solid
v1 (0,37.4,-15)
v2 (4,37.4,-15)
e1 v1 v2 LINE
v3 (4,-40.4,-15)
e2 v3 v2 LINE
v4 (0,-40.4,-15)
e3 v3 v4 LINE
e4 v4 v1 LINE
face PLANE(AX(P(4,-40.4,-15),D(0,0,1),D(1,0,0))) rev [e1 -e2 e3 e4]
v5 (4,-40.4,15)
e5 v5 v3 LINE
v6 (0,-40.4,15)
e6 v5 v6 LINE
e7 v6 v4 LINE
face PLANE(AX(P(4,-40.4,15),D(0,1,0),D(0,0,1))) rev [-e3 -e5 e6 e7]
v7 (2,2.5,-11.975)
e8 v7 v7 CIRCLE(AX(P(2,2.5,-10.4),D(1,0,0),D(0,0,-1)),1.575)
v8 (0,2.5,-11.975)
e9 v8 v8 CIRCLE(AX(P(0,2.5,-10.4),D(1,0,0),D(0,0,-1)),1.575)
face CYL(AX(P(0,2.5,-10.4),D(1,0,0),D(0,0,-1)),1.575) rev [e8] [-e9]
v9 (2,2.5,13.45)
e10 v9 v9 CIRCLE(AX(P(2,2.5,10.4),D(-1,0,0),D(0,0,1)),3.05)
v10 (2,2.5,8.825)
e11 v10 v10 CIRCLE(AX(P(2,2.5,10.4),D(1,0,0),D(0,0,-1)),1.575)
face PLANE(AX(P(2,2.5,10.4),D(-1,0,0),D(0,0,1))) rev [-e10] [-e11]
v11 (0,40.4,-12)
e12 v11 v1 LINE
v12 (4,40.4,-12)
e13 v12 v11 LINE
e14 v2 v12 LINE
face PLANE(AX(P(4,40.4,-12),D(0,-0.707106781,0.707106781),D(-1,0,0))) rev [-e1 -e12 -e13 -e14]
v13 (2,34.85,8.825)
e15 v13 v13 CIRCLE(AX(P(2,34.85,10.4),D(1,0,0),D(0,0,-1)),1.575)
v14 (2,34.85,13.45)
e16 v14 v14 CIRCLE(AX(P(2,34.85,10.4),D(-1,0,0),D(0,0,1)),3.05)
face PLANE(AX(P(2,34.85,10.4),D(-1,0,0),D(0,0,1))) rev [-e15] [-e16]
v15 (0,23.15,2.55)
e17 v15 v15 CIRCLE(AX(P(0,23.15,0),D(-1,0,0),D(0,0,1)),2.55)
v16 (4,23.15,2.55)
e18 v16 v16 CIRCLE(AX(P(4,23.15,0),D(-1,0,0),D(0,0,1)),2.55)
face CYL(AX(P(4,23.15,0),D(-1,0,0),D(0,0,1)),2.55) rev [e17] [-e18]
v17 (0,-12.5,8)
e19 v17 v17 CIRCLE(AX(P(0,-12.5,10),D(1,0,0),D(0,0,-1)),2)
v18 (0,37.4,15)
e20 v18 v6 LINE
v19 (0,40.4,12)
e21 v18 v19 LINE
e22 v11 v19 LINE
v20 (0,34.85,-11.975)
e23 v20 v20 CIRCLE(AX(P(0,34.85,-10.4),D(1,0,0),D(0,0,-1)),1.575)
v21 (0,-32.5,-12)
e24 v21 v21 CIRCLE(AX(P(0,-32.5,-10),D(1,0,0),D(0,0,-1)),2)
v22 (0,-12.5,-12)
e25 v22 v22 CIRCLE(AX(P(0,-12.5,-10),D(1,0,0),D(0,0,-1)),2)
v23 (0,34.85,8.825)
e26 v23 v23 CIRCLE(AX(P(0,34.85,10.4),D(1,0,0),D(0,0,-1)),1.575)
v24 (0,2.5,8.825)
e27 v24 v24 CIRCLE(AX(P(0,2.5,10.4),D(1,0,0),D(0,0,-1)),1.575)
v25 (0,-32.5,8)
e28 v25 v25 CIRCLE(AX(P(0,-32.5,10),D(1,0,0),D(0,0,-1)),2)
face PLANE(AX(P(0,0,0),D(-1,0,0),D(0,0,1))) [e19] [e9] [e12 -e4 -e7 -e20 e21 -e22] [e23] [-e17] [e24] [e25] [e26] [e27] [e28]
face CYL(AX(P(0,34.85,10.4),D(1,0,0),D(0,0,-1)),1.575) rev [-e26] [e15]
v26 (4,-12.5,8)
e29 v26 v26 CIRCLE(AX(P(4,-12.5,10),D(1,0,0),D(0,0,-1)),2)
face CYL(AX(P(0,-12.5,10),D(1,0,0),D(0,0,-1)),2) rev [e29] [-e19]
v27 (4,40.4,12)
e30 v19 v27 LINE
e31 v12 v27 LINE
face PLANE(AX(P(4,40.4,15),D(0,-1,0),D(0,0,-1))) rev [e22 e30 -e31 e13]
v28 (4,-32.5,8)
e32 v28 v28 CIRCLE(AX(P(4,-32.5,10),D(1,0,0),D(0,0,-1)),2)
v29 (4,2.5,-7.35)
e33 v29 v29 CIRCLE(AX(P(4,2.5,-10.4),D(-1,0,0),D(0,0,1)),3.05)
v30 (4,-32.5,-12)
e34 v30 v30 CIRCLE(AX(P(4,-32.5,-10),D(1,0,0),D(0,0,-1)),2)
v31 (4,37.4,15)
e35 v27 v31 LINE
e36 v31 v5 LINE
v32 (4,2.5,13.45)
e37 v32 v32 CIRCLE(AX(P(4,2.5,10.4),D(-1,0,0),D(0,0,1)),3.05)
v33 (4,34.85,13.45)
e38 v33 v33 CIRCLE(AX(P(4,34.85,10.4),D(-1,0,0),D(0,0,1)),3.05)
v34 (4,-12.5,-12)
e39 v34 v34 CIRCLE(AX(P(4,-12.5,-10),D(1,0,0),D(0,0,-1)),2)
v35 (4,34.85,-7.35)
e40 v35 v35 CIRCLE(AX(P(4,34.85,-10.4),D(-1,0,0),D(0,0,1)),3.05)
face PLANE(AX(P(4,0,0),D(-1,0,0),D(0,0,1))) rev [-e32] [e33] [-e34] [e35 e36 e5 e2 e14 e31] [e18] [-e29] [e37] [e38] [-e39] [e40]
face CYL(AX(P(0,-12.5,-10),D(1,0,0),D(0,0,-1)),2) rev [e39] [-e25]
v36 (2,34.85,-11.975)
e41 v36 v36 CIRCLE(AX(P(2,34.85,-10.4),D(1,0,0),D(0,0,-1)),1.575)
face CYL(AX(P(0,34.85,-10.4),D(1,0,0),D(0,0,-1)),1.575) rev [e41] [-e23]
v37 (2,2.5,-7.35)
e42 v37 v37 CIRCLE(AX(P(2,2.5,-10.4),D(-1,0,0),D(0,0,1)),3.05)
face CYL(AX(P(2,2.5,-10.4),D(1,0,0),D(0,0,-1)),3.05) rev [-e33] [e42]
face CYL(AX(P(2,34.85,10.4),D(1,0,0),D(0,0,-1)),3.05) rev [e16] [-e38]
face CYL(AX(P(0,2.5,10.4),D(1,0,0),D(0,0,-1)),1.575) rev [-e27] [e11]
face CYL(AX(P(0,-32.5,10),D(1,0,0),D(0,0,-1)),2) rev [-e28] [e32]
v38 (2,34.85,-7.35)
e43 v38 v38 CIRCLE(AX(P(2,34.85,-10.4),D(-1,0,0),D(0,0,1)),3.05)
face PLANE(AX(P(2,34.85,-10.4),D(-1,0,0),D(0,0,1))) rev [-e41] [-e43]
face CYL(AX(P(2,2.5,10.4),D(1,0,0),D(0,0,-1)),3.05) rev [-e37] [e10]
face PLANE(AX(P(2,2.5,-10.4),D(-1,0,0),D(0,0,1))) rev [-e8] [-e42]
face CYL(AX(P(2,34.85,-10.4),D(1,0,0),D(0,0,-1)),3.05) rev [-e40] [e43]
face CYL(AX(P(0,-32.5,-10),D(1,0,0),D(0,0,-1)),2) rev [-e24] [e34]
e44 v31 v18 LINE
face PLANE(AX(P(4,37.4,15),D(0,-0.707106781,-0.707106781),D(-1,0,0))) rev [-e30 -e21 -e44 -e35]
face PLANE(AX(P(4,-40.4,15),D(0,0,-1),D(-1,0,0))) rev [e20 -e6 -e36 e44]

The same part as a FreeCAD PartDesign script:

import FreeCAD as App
import Part
import Sketcher
from FreeCAD import Vector
Q = App.Units.Quantity


def edges_at(feature, points):
    """Names of the edges that pass closest to the given points."""
    edges = feature.Shape.Edges
    near = lambda p: min(range(len(edges)), key=lambda i: edges[i].distToShape(Part.Vertex(*p))[0])
    return sorted({f"Edge{near(p) + 1}" for p in points})


def add_polygon(sketch, points):
    """Adds a closed chain of lines whose ends are joined by coincident constraints."""
    first, n = sketch.GeometryCount, len(points)
    for a, b in zip(points, points[1:] + points[:1]):
        sketch.addGeometry(Part.LineSegment(App.Vector(*a, 0), App.Vector(*b, 0)), False)
    for i in range(n):
        sketch.addConstraint(Sketcher.Constraint("Coincident", first + i, 2, first + (i + 1) % n, 1))

doc = App.newDocument("Part")
body = doc.addObject("PartDesign::Body", "Body")

# Sketch on YZ plane
sketch1 = doc.addObject("Sketcher::SketchObject", "Sketch")
body.addObject(sketch1)
sketch1.AttachmentSupport = (doc.YZ_Plane, [""])
sketch1.MapMode = "FlatFace"
add_polygon(sketch1, [(40, 15), (-40, 15), (-40, -15), (40, -15)])  # lines 0-3
sketch1.addConstraint(Sketcher.Constraint("Horizontal", 0))
sketch1.addConstraint(Sketcher.Constraint("Vertical", 1))
sketch1.addConstraint(Sketcher.Constraint("Horizontal", 2))
sketch1.addConstraint(Sketcher.Constraint("Vertical", 3))
sketch1.addConstraint(Sketcher.Constraint("Symmetric", 0, 2, 2, 2, -1, 1))
sketch1.addConstraint(Sketcher.Constraint("DistanceY", 1, 2, 1, 1, Q("30 mm")))
sketch1.addConstraint(Sketcher.Constraint("DistanceX", 0, 2, 0, 1, Q("80.8 mm")))
pad1 = doc.addObject("PartDesign::Pad", "Pad")
body.addObject(pad1)
pad1.Profile = sketch1
pad1.Length = 4

# Sketch on YZ plane
sketch2 = doc.addObject("Sketcher::SketchObject", "Sketch001")
body.addObject(sketch2)
sketch2.AttachmentSupport = (doc.YZ_Plane, [""])
sketch2.MapMode = "FlatFace"
sketch2.AttachmentOffset = App.Placement(Vector(0, 0, 4), App.Rotation())
sketch2.addGeometry(Part.Circle(Vector(-12.5, 10, 0), Vector(0, 0, 1), 2), False)
sketch2.addGeometry(Part.Circle(Vector(-12.5, -10, 0), Vector(0, 0, 1), 2), False)
sketch2.addGeometry(Part.Circle(Vector(-32.5, 10, 0), Vector(0, 0, 1), 2), False)
sketch2.addGeometry(Part.Circle(Vector(-32.5, -10, 0), Vector(0, 0, 1), 2), False)
sketch2.addConstraint(Sketcher.Constraint("Equal", 0, 1))
sketch2.addConstraint(Sketcher.Constraint("Equal", 1, 2))
sketch2.addConstraint(Sketcher.Constraint("Equal", 2, 3))
sketch2.addConstraint(Sketcher.Constraint("Symmetric", 0, 3, 1, 3, -1))
sketch2.addConstraint(Sketcher.Constraint("Symmetric", 2, 3, 3, 3, -1))
sketch2.addConstraint(Sketcher.Constraint("Horizontal", 0, 3, 2, 3))
sketch2.addConstraint(Sketcher.Constraint("Diameter", 0, Q("4 mm")))
sketch2.addConstraint(Sketcher.Constraint("DistanceY", -1, 1, 0, 3, Q("10 mm")))
sketch2.addConstraint(Sketcher.Constraint("DistanceX", 2, 3, 0, 3, Q("20 mm")))
sketch2.addConstraint(Sketcher.Constraint("DistanceX", 0, 3, -1, 1, Q("12.5 mm")))
pocket1 = doc.addObject("PartDesign::Pocket", "Pocket")
body.addObject(pocket1)
pocket1.Profile = sketch2
pocket1.Type = "ThroughAll"

# Sketch on YZ plane
sketch3 = doc.addObject("Sketcher::SketchObject", "Sketch002")
body.addObject(sketch3)
sketch3.AttachmentSupport = (doc.YZ_Plane, [""])
sketch3.MapMode = "FlatFace"
sketch3.addGeometry(Part.Circle(Vector(23.1, 0, 0), Vector(0, 0, 1), 2.5), False)
sketch3.addConstraint(Sketcher.Constraint("PointOnObject", 0, 3, -1))
sketch3.addConstraint(Sketcher.Constraint("Diameter", 0, Q("5.1 mm")))
sketch3.addConstraint(Sketcher.Constraint("DistanceX", -1, 1, 0, 3, Q("23.15 mm")))
pocket2 = doc.addObject("PartDesign::Pocket", "Pocket001")
body.addObject(pocket2)
pocket2.Profile = sketch3
pocket2.Type = "ThroughAll"
pocket2.Reversed = True

# Sketch on YZ plane
sketch4 = doc.addObject("Sketcher::SketchObject", "Sketch003")
body.addObject(sketch4)
sketch4.AttachmentSupport = (doc.YZ_Plane, [""])
sketch4.MapMode = "FlatFace"
sketch4.AttachmentOffset = App.Placement(Vector(0, 0, 4), App.Rotation())
sketch4.addGeometry(Part.Circle(Vector(34.9, -10.4, 0), Vector(0, 0, 1), 3), False)
sketch4.addGeometry(Part.Circle(Vector(34.9, 10.4, 0), Vector(0, 0, 1), 3), False)
sketch4.addGeometry(Part.Circle(Vector(2.5, 10.4, 0), Vector(0, 0, 1), 3), False)
sketch4.addGeometry(Part.Circle(Vector(2.5, -10.4, 0), Vector(0, 0, 1), 3), False)
sketch4.addConstraint(Sketcher.Constraint("Equal", 0, 1))
sketch4.addConstraint(Sketcher.Constraint("Equal", 1, 2))
sketch4.addConstraint(Sketcher.Constraint("Equal", 2, 3))
sketch4.addConstraint(Sketcher.Constraint("Symmetric", 0, 3, 1, 3, -1))
sketch4.addConstraint(Sketcher.Constraint("Symmetric", 2, 3, 3, 3, -1))
sketch4.addConstraint(Sketcher.Constraint("Horizontal", 1, 3, 2, 3))
sketch4.addConstraint(Sketcher.Constraint("Diameter", 0, Q("6.1 mm")))
sketch4.addConstraint(Sketcher.Constraint("DistanceY", 0, 3, -1, 1, Q("10.4 mm")))
sketch4.addConstraint(Sketcher.Constraint("DistanceX", -1, 1, 2, 3, Q("2.5 mm")))
sketch4.addConstraint(Sketcher.Constraint("DistanceX", -1, 1, 0, 3, Q("34.85 mm")))
pocket3 = doc.addObject("PartDesign::Pocket", "Pocket002")
body.addObject(pocket3)
pocket3.Profile = sketch4
pocket3.Length = 2

# Sketch on YZ plane
sketch5 = doc.addObject("Sketcher::SketchObject", "Sketch004")
body.addObject(sketch5)
sketch5.AttachmentSupport = (doc.YZ_Plane, [""])
sketch5.MapMode = "FlatFace"
sketch5.AttachmentOffset = App.Placement(Vector(0, 0, 2), App.Rotation())
sketch5.addGeometry(Part.Circle(Vector(34.9, 10.4, 0), Vector(0, 0, 1), 1.6), False)
sketch5.addGeometry(Part.Circle(Vector(34.9, -10.4, 0), Vector(0, 0, 1), 1.6), False)
sketch5.addGeometry(Part.Circle(Vector(2.5, -10.4, 0), Vector(0, 0, 1), 1.6), False)
sketch5.addGeometry(Part.Circle(Vector(2.5, 10.4, 0), Vector(0, 0, 1), 1.6), False)
sketch5.addConstraint(Sketcher.Constraint("Equal", 0, 1))
sketch5.addConstraint(Sketcher.Constraint("Equal", 1, 2))
sketch5.addConstraint(Sketcher.Constraint("Equal", 2, 3))
sketch5.addConstraint(Sketcher.Constraint("Symmetric", 0, 3, 1, 3, -1))
sketch5.addConstraint(Sketcher.Constraint("Symmetric", 2, 3, 3, 3, -1))
sketch5.addConstraint(Sketcher.Constraint("Horizontal", 1, 3, 2, 3))
sketch5.addConstraint(Sketcher.Constraint("Diameter", 0, Q("3.15 mm")))
sketch5.addConstraint(Sketcher.Constraint("DistanceY", -1, 1, 0, 3, Q("10.4 mm")))
sketch5.addConstraint(Sketcher.Constraint("DistanceX", -1, 1, 2, 3, Q("2.5 mm")))
sketch5.addConstraint(Sketcher.Constraint("DistanceX", -1, 1, 0, 3, Q("34.85 mm")))
pocket4 = doc.addObject("PartDesign::Pocket", "Pocket003")
body.addObject(pocket4)
pocket4.Profile = sketch5
pocket4.Type = "ThroughAll"
doc.recompute()

chamfer = doc.addObject("PartDesign::Chamfer", "Chamfer")
body.addObject(chamfer)
chamfer.Base = (pocket4, edges_at(pocket4, [(2, 40.4, 15), (2, 40.4, -15)]))
chamfer.Size = 3

doc.recompute()
